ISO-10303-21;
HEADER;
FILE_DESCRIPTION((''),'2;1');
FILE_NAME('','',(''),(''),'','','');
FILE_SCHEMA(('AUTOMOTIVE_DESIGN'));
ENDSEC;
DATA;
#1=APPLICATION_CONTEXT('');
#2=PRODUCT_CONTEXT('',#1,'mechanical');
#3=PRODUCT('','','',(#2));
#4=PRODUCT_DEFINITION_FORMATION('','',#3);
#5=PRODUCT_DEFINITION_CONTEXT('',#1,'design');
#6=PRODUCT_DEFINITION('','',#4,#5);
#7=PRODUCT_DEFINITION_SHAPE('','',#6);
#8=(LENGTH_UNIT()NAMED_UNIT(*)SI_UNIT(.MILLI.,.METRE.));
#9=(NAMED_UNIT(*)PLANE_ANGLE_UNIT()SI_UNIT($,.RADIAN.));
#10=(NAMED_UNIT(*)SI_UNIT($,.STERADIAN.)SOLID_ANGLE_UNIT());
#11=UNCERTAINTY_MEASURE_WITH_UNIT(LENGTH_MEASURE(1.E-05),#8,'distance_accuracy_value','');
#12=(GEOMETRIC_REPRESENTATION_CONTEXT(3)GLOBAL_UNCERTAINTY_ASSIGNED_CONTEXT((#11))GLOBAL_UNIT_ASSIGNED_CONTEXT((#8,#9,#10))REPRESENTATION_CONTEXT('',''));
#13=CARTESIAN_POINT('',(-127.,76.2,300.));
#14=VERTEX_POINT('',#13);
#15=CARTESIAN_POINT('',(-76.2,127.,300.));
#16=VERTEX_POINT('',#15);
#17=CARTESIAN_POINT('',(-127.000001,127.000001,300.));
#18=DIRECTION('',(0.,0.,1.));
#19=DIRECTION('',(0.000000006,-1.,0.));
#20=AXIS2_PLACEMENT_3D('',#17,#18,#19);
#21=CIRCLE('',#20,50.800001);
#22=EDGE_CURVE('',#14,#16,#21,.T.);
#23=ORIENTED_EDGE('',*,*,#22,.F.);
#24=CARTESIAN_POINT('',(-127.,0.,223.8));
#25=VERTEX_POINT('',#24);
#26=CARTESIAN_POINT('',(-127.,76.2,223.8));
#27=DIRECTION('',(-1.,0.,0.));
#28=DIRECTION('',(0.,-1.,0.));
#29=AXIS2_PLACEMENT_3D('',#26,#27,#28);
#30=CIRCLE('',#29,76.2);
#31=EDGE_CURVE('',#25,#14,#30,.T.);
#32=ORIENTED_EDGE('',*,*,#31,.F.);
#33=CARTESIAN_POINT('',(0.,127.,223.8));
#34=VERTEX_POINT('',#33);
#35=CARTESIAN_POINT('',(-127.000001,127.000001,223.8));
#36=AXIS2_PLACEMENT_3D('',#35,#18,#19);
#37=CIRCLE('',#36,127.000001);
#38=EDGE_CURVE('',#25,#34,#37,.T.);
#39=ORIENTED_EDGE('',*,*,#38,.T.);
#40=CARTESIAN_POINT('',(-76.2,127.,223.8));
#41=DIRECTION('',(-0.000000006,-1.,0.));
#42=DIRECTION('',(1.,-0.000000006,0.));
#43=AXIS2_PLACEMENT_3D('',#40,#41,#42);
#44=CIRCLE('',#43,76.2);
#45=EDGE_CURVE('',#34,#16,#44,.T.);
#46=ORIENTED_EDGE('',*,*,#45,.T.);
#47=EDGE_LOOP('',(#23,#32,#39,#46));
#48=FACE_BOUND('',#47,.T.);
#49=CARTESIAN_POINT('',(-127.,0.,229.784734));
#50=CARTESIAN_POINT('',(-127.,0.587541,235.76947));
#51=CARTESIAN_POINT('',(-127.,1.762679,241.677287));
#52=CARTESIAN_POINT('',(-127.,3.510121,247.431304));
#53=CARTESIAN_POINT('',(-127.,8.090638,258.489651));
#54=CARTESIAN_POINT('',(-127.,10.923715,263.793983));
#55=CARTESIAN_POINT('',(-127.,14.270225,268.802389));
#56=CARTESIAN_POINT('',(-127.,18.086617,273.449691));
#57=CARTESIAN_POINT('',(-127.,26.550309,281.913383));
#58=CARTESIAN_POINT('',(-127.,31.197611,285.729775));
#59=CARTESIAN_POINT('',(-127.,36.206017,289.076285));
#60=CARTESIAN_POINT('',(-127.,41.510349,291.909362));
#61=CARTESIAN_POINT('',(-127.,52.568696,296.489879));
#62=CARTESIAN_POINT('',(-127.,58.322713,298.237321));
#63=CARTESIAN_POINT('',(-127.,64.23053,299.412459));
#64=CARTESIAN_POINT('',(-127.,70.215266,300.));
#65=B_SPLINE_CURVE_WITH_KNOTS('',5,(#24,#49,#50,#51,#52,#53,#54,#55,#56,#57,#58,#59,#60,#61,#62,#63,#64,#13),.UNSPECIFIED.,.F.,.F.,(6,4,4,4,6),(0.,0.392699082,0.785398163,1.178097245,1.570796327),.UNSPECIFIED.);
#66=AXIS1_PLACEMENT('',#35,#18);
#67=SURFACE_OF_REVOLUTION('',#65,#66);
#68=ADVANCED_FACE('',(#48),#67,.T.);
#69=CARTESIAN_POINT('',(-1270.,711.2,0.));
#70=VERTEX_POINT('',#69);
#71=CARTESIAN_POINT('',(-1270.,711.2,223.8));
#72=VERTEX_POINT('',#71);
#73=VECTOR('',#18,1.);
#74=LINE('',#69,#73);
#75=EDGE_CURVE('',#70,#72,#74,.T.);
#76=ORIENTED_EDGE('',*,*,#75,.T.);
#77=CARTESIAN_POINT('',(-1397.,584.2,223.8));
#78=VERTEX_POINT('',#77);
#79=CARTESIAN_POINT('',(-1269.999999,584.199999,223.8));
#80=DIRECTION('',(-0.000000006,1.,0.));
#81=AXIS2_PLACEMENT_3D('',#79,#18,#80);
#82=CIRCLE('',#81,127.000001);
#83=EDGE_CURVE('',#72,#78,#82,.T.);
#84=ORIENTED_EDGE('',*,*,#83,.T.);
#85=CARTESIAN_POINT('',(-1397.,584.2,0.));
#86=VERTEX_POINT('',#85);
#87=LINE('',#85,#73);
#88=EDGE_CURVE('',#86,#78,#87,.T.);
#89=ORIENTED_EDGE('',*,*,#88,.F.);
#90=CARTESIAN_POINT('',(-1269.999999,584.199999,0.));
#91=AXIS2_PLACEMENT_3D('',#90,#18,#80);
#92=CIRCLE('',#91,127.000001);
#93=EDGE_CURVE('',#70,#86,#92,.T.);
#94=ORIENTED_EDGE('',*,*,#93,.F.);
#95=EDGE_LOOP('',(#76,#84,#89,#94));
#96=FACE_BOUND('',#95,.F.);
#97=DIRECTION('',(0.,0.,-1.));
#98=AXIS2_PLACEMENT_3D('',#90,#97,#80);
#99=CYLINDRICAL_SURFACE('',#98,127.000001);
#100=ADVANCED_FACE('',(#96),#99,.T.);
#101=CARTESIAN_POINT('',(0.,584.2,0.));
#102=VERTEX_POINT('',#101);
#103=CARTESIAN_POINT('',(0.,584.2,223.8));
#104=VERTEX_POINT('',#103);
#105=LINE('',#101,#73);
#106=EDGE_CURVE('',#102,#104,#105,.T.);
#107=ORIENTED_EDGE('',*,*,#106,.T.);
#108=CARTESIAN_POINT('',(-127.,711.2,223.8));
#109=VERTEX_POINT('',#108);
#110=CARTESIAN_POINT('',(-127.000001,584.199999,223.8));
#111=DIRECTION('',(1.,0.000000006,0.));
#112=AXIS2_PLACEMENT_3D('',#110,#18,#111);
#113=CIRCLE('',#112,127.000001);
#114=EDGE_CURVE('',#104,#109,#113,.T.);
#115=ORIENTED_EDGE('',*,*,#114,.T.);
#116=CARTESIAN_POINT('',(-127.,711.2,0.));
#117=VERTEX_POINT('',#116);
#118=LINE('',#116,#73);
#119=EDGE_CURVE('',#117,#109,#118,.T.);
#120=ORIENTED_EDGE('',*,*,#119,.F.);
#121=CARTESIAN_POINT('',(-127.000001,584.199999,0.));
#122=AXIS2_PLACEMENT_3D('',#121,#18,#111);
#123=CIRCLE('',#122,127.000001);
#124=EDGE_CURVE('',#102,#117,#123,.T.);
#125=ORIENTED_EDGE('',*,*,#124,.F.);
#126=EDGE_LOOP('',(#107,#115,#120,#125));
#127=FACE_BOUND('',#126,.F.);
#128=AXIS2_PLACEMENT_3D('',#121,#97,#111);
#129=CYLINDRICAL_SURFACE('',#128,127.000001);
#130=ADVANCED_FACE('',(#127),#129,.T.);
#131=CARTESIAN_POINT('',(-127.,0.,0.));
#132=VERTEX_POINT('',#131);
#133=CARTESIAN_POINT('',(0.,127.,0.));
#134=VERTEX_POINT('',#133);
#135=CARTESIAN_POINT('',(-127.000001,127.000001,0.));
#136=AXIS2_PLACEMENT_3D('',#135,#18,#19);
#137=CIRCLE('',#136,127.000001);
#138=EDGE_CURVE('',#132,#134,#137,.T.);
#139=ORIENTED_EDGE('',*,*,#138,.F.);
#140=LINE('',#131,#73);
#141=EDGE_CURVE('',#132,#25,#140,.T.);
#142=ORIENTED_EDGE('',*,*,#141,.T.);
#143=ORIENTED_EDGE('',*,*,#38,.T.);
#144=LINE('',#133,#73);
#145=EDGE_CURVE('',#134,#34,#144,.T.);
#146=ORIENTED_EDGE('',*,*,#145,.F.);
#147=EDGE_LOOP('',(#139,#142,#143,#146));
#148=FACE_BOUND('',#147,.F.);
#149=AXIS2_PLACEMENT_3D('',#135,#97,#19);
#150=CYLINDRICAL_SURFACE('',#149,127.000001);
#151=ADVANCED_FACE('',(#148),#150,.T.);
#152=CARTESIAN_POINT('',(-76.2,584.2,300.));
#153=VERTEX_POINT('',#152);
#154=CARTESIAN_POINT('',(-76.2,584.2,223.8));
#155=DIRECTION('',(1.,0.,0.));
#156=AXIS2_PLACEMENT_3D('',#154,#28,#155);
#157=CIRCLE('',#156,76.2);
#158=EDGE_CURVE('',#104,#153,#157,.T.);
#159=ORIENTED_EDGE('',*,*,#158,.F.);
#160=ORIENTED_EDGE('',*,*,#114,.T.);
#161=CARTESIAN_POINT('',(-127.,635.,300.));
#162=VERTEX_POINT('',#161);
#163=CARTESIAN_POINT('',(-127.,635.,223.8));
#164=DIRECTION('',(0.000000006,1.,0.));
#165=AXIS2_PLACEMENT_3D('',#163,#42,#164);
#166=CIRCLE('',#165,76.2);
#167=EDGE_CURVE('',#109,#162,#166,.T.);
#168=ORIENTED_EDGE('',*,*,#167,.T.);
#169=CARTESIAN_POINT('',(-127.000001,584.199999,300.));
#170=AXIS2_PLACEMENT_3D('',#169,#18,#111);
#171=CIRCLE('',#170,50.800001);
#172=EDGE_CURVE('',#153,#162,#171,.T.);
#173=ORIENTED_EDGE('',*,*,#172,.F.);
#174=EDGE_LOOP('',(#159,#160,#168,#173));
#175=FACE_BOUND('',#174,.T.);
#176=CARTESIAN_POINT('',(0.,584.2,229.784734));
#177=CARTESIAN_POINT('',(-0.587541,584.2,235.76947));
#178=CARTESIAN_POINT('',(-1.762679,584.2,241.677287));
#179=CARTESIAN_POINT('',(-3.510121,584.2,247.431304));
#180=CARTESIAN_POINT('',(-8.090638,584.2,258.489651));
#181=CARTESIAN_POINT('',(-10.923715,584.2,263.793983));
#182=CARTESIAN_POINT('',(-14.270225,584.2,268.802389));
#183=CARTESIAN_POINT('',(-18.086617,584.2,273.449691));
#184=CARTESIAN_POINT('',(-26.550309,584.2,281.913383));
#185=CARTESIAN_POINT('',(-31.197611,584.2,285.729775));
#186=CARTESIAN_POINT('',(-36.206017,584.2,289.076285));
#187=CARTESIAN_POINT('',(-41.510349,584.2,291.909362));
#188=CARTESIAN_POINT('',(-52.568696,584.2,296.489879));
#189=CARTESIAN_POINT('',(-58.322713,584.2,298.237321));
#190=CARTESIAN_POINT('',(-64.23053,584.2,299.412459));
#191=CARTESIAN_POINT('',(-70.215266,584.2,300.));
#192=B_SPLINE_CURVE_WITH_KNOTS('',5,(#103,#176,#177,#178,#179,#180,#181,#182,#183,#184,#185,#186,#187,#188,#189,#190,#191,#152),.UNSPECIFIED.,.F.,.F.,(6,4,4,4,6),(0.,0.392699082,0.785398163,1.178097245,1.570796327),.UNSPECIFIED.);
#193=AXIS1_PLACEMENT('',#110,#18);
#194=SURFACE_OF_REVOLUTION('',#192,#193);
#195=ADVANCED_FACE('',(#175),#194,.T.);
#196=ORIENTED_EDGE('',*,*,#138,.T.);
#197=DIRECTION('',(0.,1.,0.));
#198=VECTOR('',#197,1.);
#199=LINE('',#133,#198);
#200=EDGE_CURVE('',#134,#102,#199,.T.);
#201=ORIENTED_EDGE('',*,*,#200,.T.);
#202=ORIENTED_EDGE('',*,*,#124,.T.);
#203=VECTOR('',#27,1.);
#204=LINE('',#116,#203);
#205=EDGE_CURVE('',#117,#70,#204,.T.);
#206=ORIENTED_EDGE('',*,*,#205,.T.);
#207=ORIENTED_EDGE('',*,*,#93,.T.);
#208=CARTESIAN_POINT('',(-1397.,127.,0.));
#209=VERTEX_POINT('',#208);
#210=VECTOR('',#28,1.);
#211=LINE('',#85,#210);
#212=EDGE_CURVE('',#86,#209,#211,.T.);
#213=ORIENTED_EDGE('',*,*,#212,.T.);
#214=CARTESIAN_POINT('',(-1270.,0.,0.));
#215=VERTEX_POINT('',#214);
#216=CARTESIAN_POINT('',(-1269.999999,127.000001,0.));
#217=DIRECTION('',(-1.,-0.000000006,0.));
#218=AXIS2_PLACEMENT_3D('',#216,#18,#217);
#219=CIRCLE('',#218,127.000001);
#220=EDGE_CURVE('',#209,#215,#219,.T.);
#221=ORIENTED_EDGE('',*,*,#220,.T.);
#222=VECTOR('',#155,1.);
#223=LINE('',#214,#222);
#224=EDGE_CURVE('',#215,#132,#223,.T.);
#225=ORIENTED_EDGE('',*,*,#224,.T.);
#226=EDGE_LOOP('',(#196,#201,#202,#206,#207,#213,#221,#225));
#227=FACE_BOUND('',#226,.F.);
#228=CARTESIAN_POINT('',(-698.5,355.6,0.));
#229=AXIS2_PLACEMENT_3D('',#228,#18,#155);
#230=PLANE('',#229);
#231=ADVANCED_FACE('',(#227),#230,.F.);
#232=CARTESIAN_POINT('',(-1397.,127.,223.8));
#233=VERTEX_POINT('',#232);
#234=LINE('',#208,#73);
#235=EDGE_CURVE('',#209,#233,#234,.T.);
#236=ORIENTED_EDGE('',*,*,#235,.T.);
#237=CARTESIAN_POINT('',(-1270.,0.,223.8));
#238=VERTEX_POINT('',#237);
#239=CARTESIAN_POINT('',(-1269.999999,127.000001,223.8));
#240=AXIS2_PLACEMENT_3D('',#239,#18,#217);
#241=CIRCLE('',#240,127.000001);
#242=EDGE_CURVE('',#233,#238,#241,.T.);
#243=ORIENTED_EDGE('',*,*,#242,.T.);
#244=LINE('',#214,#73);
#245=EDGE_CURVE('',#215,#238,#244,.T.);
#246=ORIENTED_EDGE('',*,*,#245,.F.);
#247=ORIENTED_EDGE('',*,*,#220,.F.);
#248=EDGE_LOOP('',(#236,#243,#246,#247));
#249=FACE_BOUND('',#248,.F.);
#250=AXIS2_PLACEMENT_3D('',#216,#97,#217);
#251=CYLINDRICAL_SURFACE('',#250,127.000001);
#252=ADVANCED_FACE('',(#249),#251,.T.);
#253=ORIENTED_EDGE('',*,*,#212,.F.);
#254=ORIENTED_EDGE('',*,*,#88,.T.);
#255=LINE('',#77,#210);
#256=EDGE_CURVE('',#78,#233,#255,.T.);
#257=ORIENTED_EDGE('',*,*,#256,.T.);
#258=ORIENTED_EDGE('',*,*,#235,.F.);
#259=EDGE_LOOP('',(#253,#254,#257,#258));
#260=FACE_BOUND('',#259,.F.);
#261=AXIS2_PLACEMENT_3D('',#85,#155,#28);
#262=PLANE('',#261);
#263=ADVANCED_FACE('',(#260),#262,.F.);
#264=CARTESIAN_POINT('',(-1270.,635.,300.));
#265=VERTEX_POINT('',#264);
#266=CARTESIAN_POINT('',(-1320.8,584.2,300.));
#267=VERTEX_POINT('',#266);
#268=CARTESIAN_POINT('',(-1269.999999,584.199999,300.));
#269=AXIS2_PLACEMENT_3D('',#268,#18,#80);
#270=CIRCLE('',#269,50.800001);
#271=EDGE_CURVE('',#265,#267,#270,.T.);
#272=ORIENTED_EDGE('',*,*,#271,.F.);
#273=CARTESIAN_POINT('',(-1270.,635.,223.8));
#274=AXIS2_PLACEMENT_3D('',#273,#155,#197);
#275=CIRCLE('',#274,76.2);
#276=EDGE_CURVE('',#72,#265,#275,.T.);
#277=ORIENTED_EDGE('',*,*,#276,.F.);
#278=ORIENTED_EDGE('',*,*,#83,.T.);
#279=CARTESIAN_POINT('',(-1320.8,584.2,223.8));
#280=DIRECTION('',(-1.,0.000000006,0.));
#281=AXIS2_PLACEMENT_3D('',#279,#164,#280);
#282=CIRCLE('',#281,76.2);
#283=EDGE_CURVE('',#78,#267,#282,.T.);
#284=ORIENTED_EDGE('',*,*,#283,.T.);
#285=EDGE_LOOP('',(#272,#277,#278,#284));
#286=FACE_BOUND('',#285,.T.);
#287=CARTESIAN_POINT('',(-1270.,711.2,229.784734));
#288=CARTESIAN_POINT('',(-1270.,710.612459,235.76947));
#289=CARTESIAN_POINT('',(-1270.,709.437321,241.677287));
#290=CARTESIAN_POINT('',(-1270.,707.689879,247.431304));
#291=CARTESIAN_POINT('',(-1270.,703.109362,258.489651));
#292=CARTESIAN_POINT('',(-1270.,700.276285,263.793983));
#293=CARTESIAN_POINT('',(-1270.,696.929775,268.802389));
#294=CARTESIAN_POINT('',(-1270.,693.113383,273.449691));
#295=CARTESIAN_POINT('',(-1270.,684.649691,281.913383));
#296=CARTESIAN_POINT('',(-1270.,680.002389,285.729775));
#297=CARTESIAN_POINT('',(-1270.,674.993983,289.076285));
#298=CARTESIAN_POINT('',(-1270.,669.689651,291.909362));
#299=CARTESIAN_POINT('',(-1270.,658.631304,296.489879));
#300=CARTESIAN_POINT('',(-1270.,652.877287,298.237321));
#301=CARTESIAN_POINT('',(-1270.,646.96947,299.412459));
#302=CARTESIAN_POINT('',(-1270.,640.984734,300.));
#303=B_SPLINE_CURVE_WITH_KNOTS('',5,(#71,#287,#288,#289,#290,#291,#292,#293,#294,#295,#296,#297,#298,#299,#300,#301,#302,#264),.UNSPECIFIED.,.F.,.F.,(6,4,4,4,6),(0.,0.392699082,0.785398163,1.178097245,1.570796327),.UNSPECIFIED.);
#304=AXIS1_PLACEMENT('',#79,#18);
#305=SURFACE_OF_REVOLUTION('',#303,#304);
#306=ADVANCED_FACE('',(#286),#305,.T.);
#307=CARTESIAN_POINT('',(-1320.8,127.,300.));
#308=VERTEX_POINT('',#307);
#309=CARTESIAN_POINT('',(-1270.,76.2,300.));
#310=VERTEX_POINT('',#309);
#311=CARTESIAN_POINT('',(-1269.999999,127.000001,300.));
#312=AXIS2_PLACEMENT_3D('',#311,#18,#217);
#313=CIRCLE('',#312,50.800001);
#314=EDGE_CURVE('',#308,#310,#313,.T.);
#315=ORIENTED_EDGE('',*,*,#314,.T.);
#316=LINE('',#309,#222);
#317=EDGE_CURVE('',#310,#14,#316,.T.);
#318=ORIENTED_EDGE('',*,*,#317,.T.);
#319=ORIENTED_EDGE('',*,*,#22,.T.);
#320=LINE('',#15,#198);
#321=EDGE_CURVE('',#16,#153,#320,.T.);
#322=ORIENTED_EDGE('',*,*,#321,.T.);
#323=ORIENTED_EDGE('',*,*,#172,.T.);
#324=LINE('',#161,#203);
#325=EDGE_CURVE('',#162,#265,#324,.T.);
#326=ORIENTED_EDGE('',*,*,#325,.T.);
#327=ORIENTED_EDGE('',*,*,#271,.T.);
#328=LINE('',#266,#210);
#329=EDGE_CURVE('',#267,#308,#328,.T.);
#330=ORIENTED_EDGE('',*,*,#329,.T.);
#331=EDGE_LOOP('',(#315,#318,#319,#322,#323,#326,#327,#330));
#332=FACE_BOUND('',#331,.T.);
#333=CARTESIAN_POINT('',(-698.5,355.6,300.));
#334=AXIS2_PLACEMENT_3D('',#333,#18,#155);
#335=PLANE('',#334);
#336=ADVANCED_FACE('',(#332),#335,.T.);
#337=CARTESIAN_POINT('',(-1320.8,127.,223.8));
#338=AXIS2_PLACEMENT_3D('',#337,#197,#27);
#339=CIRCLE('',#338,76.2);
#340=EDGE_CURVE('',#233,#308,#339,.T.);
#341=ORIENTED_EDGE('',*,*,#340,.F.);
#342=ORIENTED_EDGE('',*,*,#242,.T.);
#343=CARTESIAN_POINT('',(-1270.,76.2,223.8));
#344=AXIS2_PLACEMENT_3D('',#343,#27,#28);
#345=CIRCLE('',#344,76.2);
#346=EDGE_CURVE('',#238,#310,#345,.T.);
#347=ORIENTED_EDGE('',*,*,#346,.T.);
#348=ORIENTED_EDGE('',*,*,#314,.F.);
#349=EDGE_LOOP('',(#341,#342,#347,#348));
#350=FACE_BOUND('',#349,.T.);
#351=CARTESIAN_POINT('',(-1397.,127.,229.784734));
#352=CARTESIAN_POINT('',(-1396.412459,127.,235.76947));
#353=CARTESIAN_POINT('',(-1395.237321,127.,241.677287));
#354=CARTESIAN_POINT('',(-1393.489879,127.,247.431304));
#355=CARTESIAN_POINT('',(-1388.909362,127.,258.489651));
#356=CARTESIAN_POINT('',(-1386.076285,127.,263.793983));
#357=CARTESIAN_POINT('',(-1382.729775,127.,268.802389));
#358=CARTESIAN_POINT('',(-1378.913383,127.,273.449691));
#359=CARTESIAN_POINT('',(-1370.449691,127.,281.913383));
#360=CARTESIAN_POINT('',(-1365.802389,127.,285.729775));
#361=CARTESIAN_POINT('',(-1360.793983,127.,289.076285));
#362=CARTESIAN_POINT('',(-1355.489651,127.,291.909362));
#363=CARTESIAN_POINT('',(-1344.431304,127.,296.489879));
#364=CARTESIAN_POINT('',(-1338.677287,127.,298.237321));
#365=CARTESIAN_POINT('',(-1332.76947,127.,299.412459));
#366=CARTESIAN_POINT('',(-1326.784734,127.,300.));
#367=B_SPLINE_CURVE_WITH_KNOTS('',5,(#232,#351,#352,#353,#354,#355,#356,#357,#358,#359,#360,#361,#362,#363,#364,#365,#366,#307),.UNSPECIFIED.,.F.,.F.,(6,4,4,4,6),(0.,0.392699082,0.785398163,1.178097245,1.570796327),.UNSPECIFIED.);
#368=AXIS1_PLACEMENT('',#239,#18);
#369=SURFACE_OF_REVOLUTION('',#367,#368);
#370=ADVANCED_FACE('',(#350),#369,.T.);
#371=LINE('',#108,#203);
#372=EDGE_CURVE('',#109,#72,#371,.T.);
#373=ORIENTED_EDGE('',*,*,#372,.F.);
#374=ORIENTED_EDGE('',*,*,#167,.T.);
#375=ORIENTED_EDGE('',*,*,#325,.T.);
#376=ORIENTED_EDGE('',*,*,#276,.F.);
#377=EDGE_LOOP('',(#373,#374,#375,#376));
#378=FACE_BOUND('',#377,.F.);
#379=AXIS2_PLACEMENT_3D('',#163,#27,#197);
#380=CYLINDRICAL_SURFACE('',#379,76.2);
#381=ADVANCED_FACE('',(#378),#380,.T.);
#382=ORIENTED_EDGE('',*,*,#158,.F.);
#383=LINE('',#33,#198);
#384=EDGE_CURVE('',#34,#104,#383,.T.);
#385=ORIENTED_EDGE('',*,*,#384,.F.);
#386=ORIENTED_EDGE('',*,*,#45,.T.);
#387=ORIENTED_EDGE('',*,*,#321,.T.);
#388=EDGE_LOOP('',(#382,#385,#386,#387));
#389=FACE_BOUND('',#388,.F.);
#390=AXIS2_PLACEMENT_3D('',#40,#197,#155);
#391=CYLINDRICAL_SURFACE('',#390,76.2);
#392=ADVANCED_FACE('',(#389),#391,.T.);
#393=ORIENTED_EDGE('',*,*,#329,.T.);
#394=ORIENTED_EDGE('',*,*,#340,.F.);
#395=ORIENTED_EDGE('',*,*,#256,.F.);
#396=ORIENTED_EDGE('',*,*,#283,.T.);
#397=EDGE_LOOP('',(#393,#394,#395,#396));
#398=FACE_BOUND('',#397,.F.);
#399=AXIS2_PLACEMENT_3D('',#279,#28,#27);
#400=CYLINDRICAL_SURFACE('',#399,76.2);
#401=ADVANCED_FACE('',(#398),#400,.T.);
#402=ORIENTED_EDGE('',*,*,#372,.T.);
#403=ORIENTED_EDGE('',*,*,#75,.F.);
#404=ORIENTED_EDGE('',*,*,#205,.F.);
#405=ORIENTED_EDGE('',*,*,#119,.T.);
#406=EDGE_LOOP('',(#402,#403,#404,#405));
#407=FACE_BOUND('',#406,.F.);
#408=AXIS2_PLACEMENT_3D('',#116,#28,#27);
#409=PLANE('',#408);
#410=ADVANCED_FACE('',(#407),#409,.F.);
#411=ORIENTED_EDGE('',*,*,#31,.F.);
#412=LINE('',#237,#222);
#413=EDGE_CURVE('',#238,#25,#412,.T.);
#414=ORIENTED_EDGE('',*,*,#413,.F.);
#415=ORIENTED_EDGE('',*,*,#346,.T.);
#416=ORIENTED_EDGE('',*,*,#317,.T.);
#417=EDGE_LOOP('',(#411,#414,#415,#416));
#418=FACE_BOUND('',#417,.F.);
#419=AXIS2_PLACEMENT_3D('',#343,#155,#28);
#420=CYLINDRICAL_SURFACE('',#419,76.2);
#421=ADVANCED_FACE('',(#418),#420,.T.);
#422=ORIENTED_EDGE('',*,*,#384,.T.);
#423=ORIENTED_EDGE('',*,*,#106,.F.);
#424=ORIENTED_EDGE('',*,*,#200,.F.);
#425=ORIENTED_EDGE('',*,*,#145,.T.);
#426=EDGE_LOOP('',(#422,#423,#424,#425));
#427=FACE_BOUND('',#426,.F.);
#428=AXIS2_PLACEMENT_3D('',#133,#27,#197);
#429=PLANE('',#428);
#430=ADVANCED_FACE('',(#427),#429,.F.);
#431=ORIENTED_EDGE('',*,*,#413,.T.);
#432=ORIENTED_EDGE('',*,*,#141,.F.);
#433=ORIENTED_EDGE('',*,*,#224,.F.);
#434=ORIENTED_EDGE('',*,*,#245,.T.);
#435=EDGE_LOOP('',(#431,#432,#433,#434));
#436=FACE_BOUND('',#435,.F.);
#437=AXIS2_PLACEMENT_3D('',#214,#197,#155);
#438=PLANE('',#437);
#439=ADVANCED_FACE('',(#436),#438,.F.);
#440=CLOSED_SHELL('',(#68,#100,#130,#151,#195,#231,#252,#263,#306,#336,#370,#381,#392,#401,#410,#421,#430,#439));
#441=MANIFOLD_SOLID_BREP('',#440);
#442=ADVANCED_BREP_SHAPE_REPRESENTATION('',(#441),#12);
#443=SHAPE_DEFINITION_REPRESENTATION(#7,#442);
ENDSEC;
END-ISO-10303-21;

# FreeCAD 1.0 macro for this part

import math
import FreeCAD as App
import Part
import Sketcher
Q = App.Units.Quantity


def edges_at(feature, points):
    """Names of the edges that pass closest to the given points."""
    edges = feature.Shape.Edges
    near = lambda p: min(range(len(edges)), key=lambda i: edges[i].distToShape(Part.Vertex(*p))[0])
    return sorted({f"Edge{near(p) + 1}" for p in points})

doc = App.newDocument("Part")
body = doc.addObject("PartDesign::Body", "Body")

# Sketch on XY plane
sketch1 = doc.addObject("Sketcher::SketchObject", "Sketch")
body.addObject(sketch1)
sketch1.AttachmentSupport = (doc.XY_Plane, [""])
sketch1.MapMode = "FlatFace"
sketch1.addGeometry([
    Part.LineSegment(App.Vector(-1270, 0, 0), App.Vector(-127, 0, 0)),  # 0
    Part.ArcOfCircle(Part.Circle(App.Vector(-127, 127, 0), App.Vector(0, 0, 1), 127), math.radians(-90), math.radians(0)),  # 1
    Part.LineSegment(App.Vector(0, 127, 0), App.Vector(0, 584, 0)),  # 2
    Part.ArcOfCircle(Part.Circle(App.Vector(-127, 584, 0), App.Vector(0, 0, 1), 127), math.radians(0), math.radians(90)),  # 3
    Part.LineSegment(App.Vector(-127, 711, 0), App.Vector(-1270, 711, 0)),  # 4
    Part.ArcOfCircle(Part.Circle(App.Vector(-1270, 584, 0), App.Vector(0, 0, 1), 127), math.radians(90), math.radians(180)),  # 5
    Part.LineSegment(App.Vector(-1397, 584, 0), App.Vector(-1397, 127, 0)),  # 6
    Part.ArcOfCircle(Part.Circle(App.Vector(-1270, 127, 0), App.Vector(0, 0, 1), 127), math.radians(-180), math.radians(-90)),  # 7
], False)
sketch1.addConstraint([
    Sketcher.Constraint("Tangent", 0, 2, 1, 1),
    Sketcher.Constraint("Tangent", 1, 2, 2, 1),
    Sketcher.Constraint("Tangent", 2, 2, 3, 1),
    Sketcher.Constraint("Tangent", 3, 2, 4, 1),
    Sketcher.Constraint("Tangent", 4, 2, 5, 1),
    Sketcher.Constraint("Tangent", 5, 2, 6, 1),
    Sketcher.Constraint("Tangent", 6, 2, 7, 1),
    Sketcher.Constraint("Tangent", 7, 2, 0, 1),
    Sketcher.Constraint("Horizontal", 0),
    Sketcher.Constraint("Vertical", 2),
    Sketcher.Constraint("Horizontal", 4),
    Sketcher.Constraint("Vertical", 6),
    Sketcher.Constraint("Equal", 1, 3),
    Sketcher.Constraint("Equal", 3, 5),
    Sketcher.Constraint("Equal", 5, 7),
    Sketcher.Constraint("PointOnObject", 0, 2, -1),
    Sketcher.Constraint("PointOnObject", 1, 2, -2),
    Sketcher.Constraint("Radius", 1, Q("5 in")),
    Sketcher.Constraint("DistanceX", 0, 1, 0, 2, Q("45 in")),
    Sketcher.Constraint("DistanceY", 2, 1, 2, 2, Q("18 in")),
])
pad1 = doc.addObject("PartDesign::Pad", "Pad")
body.addObject(pad1)
pad1.Profile = sketch1
pad1.Length = 300
doc.recompute()

fillet = doc.addObject("PartDesign::Fillet", "Fillet")
body.addObject(fillet)
fillet.Base = (pad1, edges_at(pad1, [
    (-698.5, 0, 300),
    (-37.197, 37.197, 300),
    (0, 355.6, 300),
    (-37.197, 674.003, 300),
    (-698.5, 711.2, 300),
    (-1359.803, 674.003, 300),
    (-1397, 355.6, 300),
    (-1359.803, 37.197, 300),
]))
fillet.Radius = Q("3 in")

doc.recompute()
